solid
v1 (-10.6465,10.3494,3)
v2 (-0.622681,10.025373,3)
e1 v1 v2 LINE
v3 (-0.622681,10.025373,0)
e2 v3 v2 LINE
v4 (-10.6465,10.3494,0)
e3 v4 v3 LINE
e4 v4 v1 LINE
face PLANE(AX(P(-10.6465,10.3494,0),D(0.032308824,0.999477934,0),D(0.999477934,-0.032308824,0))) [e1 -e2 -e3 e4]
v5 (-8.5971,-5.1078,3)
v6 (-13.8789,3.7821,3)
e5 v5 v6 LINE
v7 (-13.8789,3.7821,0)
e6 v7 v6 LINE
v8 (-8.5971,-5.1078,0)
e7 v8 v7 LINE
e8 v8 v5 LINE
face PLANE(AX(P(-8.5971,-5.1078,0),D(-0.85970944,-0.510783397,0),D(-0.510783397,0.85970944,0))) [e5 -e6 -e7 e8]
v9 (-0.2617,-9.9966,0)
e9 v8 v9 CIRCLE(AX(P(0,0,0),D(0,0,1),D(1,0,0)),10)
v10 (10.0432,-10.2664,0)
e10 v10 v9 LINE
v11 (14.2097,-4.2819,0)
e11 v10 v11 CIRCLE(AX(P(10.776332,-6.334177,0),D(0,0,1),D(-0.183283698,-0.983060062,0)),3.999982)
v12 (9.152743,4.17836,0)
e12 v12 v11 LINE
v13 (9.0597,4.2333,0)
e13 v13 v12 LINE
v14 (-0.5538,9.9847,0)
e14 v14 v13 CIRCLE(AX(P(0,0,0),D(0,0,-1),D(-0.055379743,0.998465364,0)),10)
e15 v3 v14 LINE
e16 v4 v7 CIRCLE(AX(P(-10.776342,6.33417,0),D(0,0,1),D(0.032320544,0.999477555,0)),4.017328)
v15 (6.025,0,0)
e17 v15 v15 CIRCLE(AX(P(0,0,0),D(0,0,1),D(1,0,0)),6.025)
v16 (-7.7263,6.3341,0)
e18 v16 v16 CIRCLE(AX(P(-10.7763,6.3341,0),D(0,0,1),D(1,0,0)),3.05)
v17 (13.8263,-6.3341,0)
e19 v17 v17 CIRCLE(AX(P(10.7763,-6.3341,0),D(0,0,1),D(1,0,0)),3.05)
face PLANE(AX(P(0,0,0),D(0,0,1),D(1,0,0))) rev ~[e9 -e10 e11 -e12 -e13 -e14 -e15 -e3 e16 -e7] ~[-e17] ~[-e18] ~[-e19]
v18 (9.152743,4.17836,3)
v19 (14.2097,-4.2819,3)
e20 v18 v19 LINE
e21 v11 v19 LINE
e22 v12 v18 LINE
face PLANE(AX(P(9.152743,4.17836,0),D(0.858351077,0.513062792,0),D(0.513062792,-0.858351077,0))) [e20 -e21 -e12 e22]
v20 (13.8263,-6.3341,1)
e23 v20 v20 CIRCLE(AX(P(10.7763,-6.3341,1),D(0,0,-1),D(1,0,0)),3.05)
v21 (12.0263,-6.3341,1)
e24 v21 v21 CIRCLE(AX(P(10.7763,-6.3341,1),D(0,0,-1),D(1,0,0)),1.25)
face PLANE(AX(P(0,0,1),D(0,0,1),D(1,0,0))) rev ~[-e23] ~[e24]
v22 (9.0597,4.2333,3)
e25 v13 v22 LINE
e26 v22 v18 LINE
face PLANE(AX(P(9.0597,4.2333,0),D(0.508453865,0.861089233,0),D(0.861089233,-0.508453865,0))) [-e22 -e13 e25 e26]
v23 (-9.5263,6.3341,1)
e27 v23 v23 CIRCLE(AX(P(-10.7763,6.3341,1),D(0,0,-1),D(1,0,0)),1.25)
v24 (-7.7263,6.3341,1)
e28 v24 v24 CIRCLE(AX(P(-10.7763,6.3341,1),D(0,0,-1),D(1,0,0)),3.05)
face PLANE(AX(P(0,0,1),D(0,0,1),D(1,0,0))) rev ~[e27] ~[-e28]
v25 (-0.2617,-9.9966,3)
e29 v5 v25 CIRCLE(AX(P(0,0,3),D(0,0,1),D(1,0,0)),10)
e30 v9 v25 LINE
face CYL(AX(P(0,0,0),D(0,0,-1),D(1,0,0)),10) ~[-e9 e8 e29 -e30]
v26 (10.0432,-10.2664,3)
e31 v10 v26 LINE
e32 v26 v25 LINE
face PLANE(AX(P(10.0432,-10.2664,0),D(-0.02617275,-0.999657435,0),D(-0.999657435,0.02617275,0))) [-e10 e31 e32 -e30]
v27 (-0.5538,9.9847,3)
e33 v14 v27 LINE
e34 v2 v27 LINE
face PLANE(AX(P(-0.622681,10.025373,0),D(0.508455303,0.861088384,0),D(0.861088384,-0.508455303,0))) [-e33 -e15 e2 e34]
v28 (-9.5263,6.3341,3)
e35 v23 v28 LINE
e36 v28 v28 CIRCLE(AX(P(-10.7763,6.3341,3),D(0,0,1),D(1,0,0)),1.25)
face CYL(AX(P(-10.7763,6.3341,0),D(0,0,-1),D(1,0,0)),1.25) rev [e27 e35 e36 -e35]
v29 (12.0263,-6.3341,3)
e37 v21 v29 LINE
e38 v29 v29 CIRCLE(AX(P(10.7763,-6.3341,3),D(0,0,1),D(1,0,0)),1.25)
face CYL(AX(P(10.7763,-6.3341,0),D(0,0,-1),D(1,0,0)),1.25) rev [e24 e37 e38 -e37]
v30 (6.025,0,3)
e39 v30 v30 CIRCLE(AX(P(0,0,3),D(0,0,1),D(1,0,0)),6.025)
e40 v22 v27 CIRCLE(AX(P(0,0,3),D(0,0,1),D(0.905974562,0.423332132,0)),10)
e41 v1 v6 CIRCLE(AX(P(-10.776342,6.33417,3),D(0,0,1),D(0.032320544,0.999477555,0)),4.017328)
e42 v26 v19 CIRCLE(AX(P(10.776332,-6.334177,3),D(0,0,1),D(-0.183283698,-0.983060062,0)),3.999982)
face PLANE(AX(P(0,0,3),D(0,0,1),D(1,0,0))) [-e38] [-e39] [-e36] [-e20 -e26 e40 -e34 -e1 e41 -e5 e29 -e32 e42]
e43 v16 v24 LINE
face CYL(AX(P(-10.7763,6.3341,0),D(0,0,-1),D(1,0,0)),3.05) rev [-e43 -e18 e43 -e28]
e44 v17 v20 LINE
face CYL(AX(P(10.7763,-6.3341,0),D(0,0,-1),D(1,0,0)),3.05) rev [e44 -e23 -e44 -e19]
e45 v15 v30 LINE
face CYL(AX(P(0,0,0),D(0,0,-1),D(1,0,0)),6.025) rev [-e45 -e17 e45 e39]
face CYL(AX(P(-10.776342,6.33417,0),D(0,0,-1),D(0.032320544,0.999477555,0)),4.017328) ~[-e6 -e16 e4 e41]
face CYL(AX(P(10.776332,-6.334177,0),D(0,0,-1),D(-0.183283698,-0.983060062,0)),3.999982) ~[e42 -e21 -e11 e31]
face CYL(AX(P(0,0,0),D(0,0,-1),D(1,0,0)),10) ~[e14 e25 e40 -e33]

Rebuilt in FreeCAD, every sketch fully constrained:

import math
import FreeCAD as App
import Part
import Sketcher

V = App.Vector
Q = App.Units.Quantity

doc = App.newDocument("Part")
params = doc.addObject("Spreadsheet::Sheet", "Params")
for row, (alias, value) in enumerate([
    ("sketch1_diameter", "2.5 mm"),
    ("sketch1_diameter2", "12.05 mm"),
    ("sketch1_radius", "10 mm"),
    ("sketch1_radius2", "4 mm"),
    ("sketch1_length", "0.08 mm"),
    ("pad1_length", "3 mm"),
    ("sketch2_diameter", "6.1 mm"),
    ("pocket1_length", "1 mm"),
], start=1):
    params.set(f"A{row}", alias)
    params.set(f"B{row}", "=" + value)
    params.setAlias(f"B{row}", alias)

body = doc.addObject("PartDesign::Body", "Body")

# Sketch on XY plane
sketch1 = doc.addObject("Sketcher::SketchObject", "Sketch")
body.addObject(sketch1)
sketch1.AttachmentSupport = (doc.XY_Plane, [""])
sketch1.MapMode = "FlatFace"
sketch1.addGeometry([
    Part.ArcOfCircle(Part.Circle(V(0, 0, 0), V(0, 0, 1), 10), math.radians(-149), math.radians(-91)),  # 0
    Part.LineSegment(V(-0.26, -10, 0), V(10.04, -10.27, 0)),  # 1
    Part.ArcOfCircle(Part.Circle(V(10.78, -6.33, 0), V(0, 0, 1), 4), math.radians(-101), math.radians(31)),  # 2
    Part.LineSegment(V(14.21, -4.28, 0), V(9.15, 4.18, 0)),  # 3
    Part.LineSegment(V(9.15, 4.18, 0), V(9.06, 4.23, 0)),  # 4
    Part.ArcOfCircle(Part.Circle(V(0, 0, 0), V(0, 0, 1), 10), math.radians(25), math.radians(93)),  # 5
    Part.LineSegment(V(-0.55, 9.98, 0), V(-0.62, 10.03, 0)),  # 6
    Part.LineSegment(V(-0.62, 10.03, 0), V(-10.65, 10.35, 0)),  # 7
    Part.ArcOfCircle(Part.Circle(V(-10.78, 6.33, 0), V(0, 0, 1), 4.02), math.radians(88), math.radians(219)),  # 8
    Part.LineSegment(V(-13.88, 3.78, 0), V(-8.6, -5.11, 0)),  # 9
    Part.Circle(V(0, 0, 0), V(0, 0, 1), 6.03),  # 10
    Part.Circle(V(10.78, -6.33, 0), V(0, 0, 1), 1.25),  # 11
    Part.Circle(V(-10.78, 6.33, 0), V(0, 0, 1), 1.25),  # 12
], False)
sketch1.addConstraint([
    Sketcher.Constraint("Tangent", 0, 2, 1, 1),
    Sketcher.Constraint("Coincident", 1, 2, 2, 1),
    Sketcher.Constraint("Tangent", 2, 2, 3, 1),
    Sketcher.Constraint("Coincident", 3, 2, 4, 1),
    Sketcher.Constraint("Coincident", 4, 2, 5, 1),
    Sketcher.Constraint("Coincident", 5, 2, 6, 1),
    Sketcher.Constraint("Coincident", 6, 2, 7, 1),
    Sketcher.Constraint("Tangent", 7, 2, 8, 1),
    Sketcher.Constraint("Coincident", 8, 2, 9, 1),
    Sketcher.Constraint("Tangent", 9, 2, 0, 1),
    Sketcher.Constraint("Coincident", 0, 3, -1, 1),
    Sketcher.Constraint("Coincident", 5, 3, -1, 1),
    Sketcher.Constraint("Coincident", 10, 3, -1, 1),
    Sketcher.Constraint("Coincident", 11, 3, 2, 3),
    Sketcher.Constraint("Coincident", 12, 3, 8, 3),
    Sketcher.Constraint("Equal", 0, 5),
    Sketcher.Constraint("Equal", 11, 12),
    Sketcher.Constraint("Symmetric", 2, 3, 8, 3, -1, 1),
    Sketcher.Constraint("Parallel", 4, 6),
    Sketcher.Constraint("Diameter", 11, Q("2.5 mm")),
    Sketcher.Constraint("Diameter", 10, Q("12.05 mm")),
    Sketcher.Constraint("Radius", 0, Q("10 mm")),
    Sketcher.Constraint("Radius", 2, Q("4 mm")),
    Sketcher.Constraint("Angle", 1, Q("-1.4998 deg")),
    Sketcher.Constraint("Angle", 4, Q("149.439 deg")),
    Sketcher.Constraint("Radius", 8, Q("4.0174 mm")),
    Sketcher.Constraint("Distance", 6, Q("0.08 mm")),
    Sketcher.Constraint("DistanceX", 4, 2, 2, 2, Q("5.15 mm")),
    Sketcher.Constraint("Distance", 4, Q("0.108 mm")),
    Sketcher.Constraint("Distance", 7, Q("10.029 mm")),
    Sketcher.Constraint("DistanceY", 2, 3, -1, 1, Q("6.334 mm")),
    Sketcher.Constraint("DistanceX", 8, 2, -1, 1, Q("13.879 mm")),
    Sketcher.Constraint("DistanceY", -1, 1, 8, 2, Q("3.782 mm")),
])
sketch1.setExpression("Constraints[19]", "Params.sketch1_diameter")
sketch1.setExpression("Constraints[20]", "Params.sketch1_diameter2")
sketch1.setExpression("Constraints[21]", "Params.sketch1_radius")
sketch1.setExpression("Constraints[22]", "Params.sketch1_radius2")
sketch1.setExpression("Constraints[26]", "Params.sketch1_length")
pad1 = doc.addObject("PartDesign::Pad", "Pad")
body.addObject(pad1)
pad1.Profile = sketch1
pad1.setExpression("Length", "Params.pad1_length")

# Sketch on XY plane
sketch2 = doc.addObject("Sketcher::SketchObject", "Sketch001")
body.addObject(sketch2)
sketch2.AttachmentSupport = (doc.XY_Plane, [""])
sketch2.MapMode = "FlatFace"
sketch2.addGeometry([
    Part.Circle(V(10.8, -6.3, 0), V(0, 0, 1), 3),
    Part.Circle(V(-10.8, 6.3, 0), V(0, 0, 1), 3),
], False)
sketch2.addConstraint([
    Sketcher.Constraint("Equal", 0, 1),
    Sketcher.Constraint("Symmetric", 0, 3, 1, 3, -1, 1),
    Sketcher.Constraint("Diameter", 0, Q("6.1 mm")),
    Sketcher.Constraint("DistanceY", 0, 3, -1, 1, Q("6.334 mm")),
    Sketcher.Constraint("DistanceX", -1, 1, 0, 3, Q("10.7763 mm")),
])
sketch2.setExpression("Constraints[2]", "Params.sketch2_diameter")
pocket1 = doc.addObject("PartDesign::Pocket", "Pocket")
body.addObject(pocket1)
pocket1.Profile = sketch2
pocket1.setExpression("Length", "Params.pocket1_length")
pocket1.Reversed = True

doc.recompute()
